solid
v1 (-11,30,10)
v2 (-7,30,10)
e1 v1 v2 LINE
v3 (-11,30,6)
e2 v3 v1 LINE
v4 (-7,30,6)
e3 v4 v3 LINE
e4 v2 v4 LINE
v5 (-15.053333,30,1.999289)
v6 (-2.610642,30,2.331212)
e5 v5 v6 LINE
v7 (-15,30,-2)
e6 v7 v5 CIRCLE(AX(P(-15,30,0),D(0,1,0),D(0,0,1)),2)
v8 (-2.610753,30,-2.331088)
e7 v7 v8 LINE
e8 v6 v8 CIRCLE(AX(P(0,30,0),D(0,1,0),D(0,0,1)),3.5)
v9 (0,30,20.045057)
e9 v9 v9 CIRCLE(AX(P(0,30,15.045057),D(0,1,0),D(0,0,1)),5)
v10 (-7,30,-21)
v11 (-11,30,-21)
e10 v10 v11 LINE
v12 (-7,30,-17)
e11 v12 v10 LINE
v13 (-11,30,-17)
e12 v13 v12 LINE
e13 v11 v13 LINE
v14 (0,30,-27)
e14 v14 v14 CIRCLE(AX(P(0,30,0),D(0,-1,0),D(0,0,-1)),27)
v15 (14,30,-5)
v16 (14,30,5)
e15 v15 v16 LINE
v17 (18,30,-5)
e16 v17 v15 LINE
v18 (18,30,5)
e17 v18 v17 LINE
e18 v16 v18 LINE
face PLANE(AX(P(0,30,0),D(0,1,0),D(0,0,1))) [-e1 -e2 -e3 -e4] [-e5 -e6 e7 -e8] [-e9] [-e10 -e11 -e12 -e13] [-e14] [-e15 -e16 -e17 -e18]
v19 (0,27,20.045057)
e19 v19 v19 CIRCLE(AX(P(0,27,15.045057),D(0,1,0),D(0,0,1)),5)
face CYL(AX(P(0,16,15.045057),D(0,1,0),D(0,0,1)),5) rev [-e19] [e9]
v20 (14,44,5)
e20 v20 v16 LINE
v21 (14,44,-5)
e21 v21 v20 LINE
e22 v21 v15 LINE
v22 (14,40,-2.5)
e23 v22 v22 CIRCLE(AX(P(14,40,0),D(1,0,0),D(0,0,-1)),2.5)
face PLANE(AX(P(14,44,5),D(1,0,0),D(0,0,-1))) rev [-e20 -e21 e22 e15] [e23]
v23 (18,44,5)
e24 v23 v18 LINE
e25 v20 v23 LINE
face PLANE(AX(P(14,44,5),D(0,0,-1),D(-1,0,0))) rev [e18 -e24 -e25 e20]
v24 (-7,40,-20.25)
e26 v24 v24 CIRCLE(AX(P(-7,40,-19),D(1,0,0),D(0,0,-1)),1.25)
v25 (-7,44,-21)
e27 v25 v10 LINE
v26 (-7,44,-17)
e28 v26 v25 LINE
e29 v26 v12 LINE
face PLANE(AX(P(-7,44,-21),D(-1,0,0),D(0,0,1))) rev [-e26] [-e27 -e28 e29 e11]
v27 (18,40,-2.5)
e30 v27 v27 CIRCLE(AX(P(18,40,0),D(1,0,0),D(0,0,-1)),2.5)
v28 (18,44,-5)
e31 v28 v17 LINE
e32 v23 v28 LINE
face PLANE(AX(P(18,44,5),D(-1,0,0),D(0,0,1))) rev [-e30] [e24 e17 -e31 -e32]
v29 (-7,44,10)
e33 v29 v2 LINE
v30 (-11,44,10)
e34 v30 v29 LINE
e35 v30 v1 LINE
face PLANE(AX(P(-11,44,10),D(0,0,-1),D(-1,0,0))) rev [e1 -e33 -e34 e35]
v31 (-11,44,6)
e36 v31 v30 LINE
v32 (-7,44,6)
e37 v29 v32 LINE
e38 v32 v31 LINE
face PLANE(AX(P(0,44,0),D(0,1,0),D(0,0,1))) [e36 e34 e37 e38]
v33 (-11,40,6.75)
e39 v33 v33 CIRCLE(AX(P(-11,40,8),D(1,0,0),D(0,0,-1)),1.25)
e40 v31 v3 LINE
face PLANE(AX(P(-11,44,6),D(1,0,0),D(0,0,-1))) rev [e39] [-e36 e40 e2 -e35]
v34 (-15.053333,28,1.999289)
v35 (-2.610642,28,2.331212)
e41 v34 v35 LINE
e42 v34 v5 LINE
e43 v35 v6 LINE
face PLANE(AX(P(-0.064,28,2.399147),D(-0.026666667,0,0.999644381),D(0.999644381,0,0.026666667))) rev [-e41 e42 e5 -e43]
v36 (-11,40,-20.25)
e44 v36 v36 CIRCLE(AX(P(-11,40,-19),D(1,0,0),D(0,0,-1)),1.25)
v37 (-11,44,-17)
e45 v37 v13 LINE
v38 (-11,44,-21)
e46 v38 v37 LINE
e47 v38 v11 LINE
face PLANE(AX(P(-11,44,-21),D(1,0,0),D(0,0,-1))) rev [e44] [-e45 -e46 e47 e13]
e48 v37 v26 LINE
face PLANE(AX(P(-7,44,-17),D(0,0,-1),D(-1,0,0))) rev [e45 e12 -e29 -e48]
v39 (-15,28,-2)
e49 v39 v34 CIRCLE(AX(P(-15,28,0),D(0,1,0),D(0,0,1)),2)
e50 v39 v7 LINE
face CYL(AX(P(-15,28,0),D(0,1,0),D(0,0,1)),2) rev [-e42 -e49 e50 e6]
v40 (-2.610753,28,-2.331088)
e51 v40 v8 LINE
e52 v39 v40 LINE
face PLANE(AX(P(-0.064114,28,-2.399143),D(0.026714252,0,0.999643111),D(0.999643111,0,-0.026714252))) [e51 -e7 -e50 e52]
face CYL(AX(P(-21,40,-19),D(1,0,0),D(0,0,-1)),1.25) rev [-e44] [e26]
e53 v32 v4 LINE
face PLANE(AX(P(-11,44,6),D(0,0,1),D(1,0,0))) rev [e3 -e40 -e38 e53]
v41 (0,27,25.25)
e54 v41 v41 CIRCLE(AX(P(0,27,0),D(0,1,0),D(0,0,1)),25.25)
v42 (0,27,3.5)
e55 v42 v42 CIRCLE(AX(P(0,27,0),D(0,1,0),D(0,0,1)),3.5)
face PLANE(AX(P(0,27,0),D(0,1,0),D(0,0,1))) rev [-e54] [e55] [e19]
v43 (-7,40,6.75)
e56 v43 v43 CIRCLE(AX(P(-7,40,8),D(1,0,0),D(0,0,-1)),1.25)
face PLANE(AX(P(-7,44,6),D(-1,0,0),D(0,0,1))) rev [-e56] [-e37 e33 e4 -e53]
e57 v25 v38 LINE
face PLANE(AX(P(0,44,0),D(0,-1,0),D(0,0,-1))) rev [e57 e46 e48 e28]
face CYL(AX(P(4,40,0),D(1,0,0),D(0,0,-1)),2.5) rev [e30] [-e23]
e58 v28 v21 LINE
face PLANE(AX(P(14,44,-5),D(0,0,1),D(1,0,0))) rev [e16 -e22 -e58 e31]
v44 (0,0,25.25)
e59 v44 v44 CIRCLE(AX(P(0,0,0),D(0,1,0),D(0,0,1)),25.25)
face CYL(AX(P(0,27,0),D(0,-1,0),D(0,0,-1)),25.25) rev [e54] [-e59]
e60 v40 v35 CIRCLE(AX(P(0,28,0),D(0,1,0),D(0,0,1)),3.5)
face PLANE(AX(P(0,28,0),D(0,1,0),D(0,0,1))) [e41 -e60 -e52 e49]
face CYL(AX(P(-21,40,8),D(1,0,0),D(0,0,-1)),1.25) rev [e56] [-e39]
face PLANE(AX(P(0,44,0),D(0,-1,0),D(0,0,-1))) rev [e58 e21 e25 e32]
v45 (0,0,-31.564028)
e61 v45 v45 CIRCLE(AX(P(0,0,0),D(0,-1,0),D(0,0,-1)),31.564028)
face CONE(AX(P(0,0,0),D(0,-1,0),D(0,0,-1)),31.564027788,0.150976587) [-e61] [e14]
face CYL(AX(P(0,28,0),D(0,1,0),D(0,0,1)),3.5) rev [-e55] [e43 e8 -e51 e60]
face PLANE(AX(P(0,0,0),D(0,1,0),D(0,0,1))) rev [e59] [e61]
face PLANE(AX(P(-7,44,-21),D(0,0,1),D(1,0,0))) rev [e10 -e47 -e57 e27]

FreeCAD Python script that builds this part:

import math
import FreeCAD as App
import Part
import Sketcher
from FreeCAD import Vector
Q = App.Units.Quantity

doc = App.newDocument("Part")
body = doc.addObject("PartDesign::Body", "Body")

# Sketch on XZ plane
sketch1 = doc.addObject("Sketcher::SketchObject", "Sketch")
body.addObject(sketch1)
sketch1.AttachmentSupport = (doc.XZ_Plane, [""])
sketch1.MapMode = "FlatFace"
sketch1.addGeometry([
    Part.Circle(Vector(0, 0, 0), Vector(0, 0, 1), 27),
    Part.Circle(Vector(0, 0, 0), Vector(0, 0, 1), 25),
], False)
sketch1.addConstraint([
    Sketcher.Constraint("Coincident", 0, 3, -1, 1),
    Sketcher.Constraint("Coincident", 1, 3, -1, 1),
    Sketcher.Constraint("Diameter", 0, Q("54 mm")),
    Sketcher.Constraint("Diameter", 1, Q("50.5 mm")),
])
pad1 = doc.addObject("PartDesign::Pad", "Pad")
body.addObject(pad1)
pad1.Profile = sketch1
pad1.Length = 27
pad1.Reversed = True

# Sketch on XZ plane
sketch2 = doc.addObject("Sketcher::SketchObject", "Sketch001")
body.addObject(sketch2)
sketch2.AttachmentSupport = (doc.XZ_Plane, [""])
sketch2.MapMode = "FlatFace"
sketch2.AttachmentOffset = App.Placement(Vector(0, 0, -27), App.Rotation())
sketch2.addGeometry([
    Part.Circle(Vector(0, 0, 0), Vector(0, 0, 1), 27),
    Part.Circle(Vector(0, 0, 0), Vector(0, 0, 1), 2.4),
], False)
sketch2.addConstraint([
    Sketcher.Constraint("Coincident", 0, 3, -1, 1),
    Sketcher.Constraint("Coincident", 1, 3, -1, 1),
    Sketcher.Constraint("Diameter", 0, Q("54 mm")),
    Sketcher.Constraint("Diameter", 1, Q("4.8 mm")),
])
pad2 = doc.addObject("PartDesign::Pad", "Pad001")
body.addObject(pad2)
pad2.Profile = sketch2
pad2.Length = 3
pad2.Reversed = True

# Sketch on XY plane
sketch3 = doc.addObject("Sketcher::SketchObject", "Sketch002")
body.addObject(sketch3)
sketch3.AttachmentSupport = (doc.XY_Plane, [""])
sketch3.MapMode = "FlatFace"
sketch3.addGeometry([
    Part.LineSegment(Vector(31.6, 0, 0), Vector(27, 30, 0)),
    Part.LineSegment(Vector(27, 30, 0), Vector(27, 0, 0)),
    Part.LineSegment(Vector(27, 0, 0), Vector(31.6, 0, 0)),
], False)
sketch3.addConstraint([
    Sketcher.Constraint("Coincident", 0, 2, 1, 1),
    Sketcher.Constraint("Coincident", 1, 2, 2, 1),
    Sketcher.Constraint("Coincident", 2, 2, 0, 1),
    Sketcher.Constraint("Vertical", 1),
    Sketcher.Constraint("Horizontal", 2),
    Sketcher.Constraint("PointOnObject", 1, 2, -1),
    Sketcher.Constraint("DistanceY", 1, 2, 1, 1, Q("30 mm")),
    Sketcher.Constraint("DistanceX", -1, 1, 0, 2, Q("27 mm")),
    Sketcher.Constraint("DistanceX", 2, 1, 2, 2, Q("4.564028 mm")),
])
revolution = doc.addObject("PartDesign::Revolution", "Revolution")
body.addObject(revolution)
revolution.Profile = sketch3
revolution.ReferenceAxis = (sketch3, ["V_Axis"])
revolution.Angle = 360

# Sketch on XZ plane
sketch4 = doc.addObject("Sketcher::SketchObject", "Sketch003")
body.addObject(sketch4)
sketch4.AttachmentSupport = (doc.XZ_Plane, [""])
sketch4.MapMode = "FlatFace"
sketch4.AttachmentOffset = App.Placement(Vector(0, 0, -30), App.Rotation())
sketch4.addGeometry([
    Part.LineSegment(Vector(-11, -21, 0), Vector(-11, -17, 0)),  # 0
    Part.LineSegment(Vector(-11, -17, 0), Vector(-7, -17, 0)),  # 1
    Part.LineSegment(Vector(-7, -17, 0), Vector(-7, -21, 0)),  # 2
    Part.LineSegment(Vector(-7, -21, 0), Vector(-11, -21, 0)),  # 3
    Part.LineSegment(Vector(-11, 6, 0), Vector(-11, 10, 0)),  # 4
    Part.LineSegment(Vector(-11, 10, 0), Vector(-7, 10, 0)),  # 5
    Part.LineSegment(Vector(-7, 10, 0), Vector(-7, 6, 0)),  # 6
    Part.LineSegment(Vector(-7, 6, 0), Vector(-11, 6, 0)),  # 7
], False)
sketch4.addConstraint([
    Sketcher.Constraint("Coincident", 0, 2, 1, 1),
    Sketcher.Constraint("Coincident", 1, 2, 2, 1),
    Sketcher.Constraint("Coincident", 2, 2, 3, 1),
    Sketcher.Constraint("Coincident", 3, 2, 0, 1),
    Sketcher.Constraint("Coincident", 4, 2, 5, 1),
    Sketcher.Constraint("Coincident", 5, 2, 6, 1),
    Sketcher.Constraint("Coincident", 6, 2, 7, 1),
    Sketcher.Constraint("Coincident", 7, 2, 4, 1),
    Sketcher.Constraint("Vertical", 0),
    Sketcher.Constraint("Horizontal", 1),
    Sketcher.Constraint("Vertical", 2),
    Sketcher.Constraint("Horizontal", 3),
    Sketcher.Constraint("Vertical", 4),
    Sketcher.Constraint("Horizontal", 5),
    Sketcher.Constraint("Vertical", 6),
    Sketcher.Constraint("Horizontal", 7),
    Sketcher.Constraint("Vertical", 3, 2, 4, 2),
    Sketcher.Constraint("Vertical", 2, 2, 5, 2),
    Sketcher.Constraint("Equal", 7, 0),
    Sketcher.Constraint("Equal", 2, 4),
    Sketcher.Constraint("DistanceX", 1, 1, 1, 2, Q("4 mm")),
    Sketcher.Constraint("DistanceX", 0, 2, -1, 1, Q("11 mm")),
    Sketcher.Constraint("DistanceY", 0, 2, -1, 1, Q("17 mm")),
    Sketcher.Constraint("DistanceY", -1, 1, 4, 2, Q("10 mm")),
])
pad3 = doc.addObject("PartDesign::Pad", "Pad002")
body.addObject(pad3)
pad3.Profile = sketch4
pad3.Length = 14
pad3.Reversed = True

# Sketch on YZ plane
sketch5 = doc.addObject("Sketcher::SketchObject", "Sketch004")
body.addObject(sketch5)
sketch5.AttachmentSupport = (doc.YZ_Plane, [""])
sketch5.MapMode = "FlatFace"
sketch5.AttachmentOffset = App.Placement(Vector(0, 0, -7), App.Rotation())
sketch5.addGeometry([
    Part.Circle(Vector(40, 8, 0), Vector(0, 0, 1), 1.2),
    Part.Circle(Vector(40, -19, 0), Vector(0, 0, 1), 1.2),
], False)
sketch5.addConstraint([
    Sketcher.Constraint("Equal", 0, 1),
    Sketcher.Constraint("Vertical", 0, 3, 1, 3),
    Sketcher.Constraint("Diameter", 0, Q("2.5 mm")),
    Sketcher.Constraint("DistanceX", -1, 1, 0, 3, Q("40 mm")),
    Sketcher.Constraint("DistanceY", -1, 1, 0, 3, Q("8 mm")),
    Sketcher.Constraint("DistanceY", 1, 3, -1, 1, Q("19 mm")),
])
pocket1 = doc.addObject("PartDesign::Pocket", "Pocket")
body.addObject(pocket1)
pocket1.Profile = sketch5
pocket1.Length = 14

# Sketch on XZ plane
sketch6 = doc.addObject("Sketcher::SketchObject", "Sketch005")
body.addObject(sketch6)
sketch6.AttachmentSupport = (doc.XZ_Plane, [""])
sketch6.MapMode = "FlatFace"
sketch6.AttachmentOffset = App.Placement(Vector(0, 0, -30), App.Rotation())
sketch6.addGeometry([
    Part.LineSegment(Vector(14, -5, 0), Vector(14, 5, 0)),
    Part.LineSegment(Vector(14, 5, 0), Vector(18, 5, 0)),
    Part.LineSegment(Vector(18, 5, 0), Vector(18, -5, 0)),
    Part.LineSegment(Vector(18, -5, 0), Vector(14, -5, 0)),
], False)
sketch6.addConstraint([
    Sketcher.Constraint("Coincident", 0, 2, 1, 1),
    Sketcher.Constraint("Coincident", 1, 2, 2, 1),
    Sketcher.Constraint("Coincident", 2, 2, 3, 1),
    Sketcher.Constraint("Coincident", 3, 2, 0, 1),
    Sketcher.Constraint("Vertical", 0),
    Sketcher.Constraint("Horizontal", 1),
    Sketcher.Constraint("Vertical", 2),
    Sketcher.Constraint("Horizontal", 3),
    Sketcher.Constraint("DistanceX", 1, 1, 1, 2, Q("4 mm")),
    Sketcher.Constraint("DistanceY", 0, 1, 0, 2, Q("10 mm")),
    Sketcher.Constraint("DistanceX", -1, 1, 0, 2, Q("14 mm")),
    Sketcher.Constraint("DistanceY", -1, 1, 0, 2, Q("5 mm")),
])
pad4 = doc.addObject("PartDesign::Pad", "Pad003")
body.addObject(pad4)
pad4.Profile = sketch6
pad4.Length = 14
pad4.Reversed = True

# Sketch on YZ plane
sketch7 = doc.addObject("Sketcher::SketchObject", "Sketch006")
body.addObject(sketch7)
sketch7.AttachmentSupport = (doc.YZ_Plane, [""])
sketch7.MapMode = "FlatFace"
sketch7.AttachmentOffset = App.Placement(Vector(0, 0, 18), App.Rotation())
sketch7.addGeometry(Part.Circle(Vector(40, 0, 0), Vector(0, 0, 1), 2.5), False)
sketch7.addConstraint([
    Sketcher.Constraint("PointOnObject", 0, 3, -1),
    Sketcher.Constraint("Diameter", 0, Q("5 mm")),
    Sketcher.Constraint("DistanceX", -1, 1, 0, 3, Q("40 mm")),
])
pocket2 = doc.addObject("PartDesign::Pocket", "Pocket001")
body.addObject(pocket2)
pocket2.Profile = sketch7
pocket2.Length = 14

# Sketch on XZ plane
sketch8 = doc.addObject("Sketcher::SketchObject", "Sketch007")
body.addObject(sketch8)
sketch8.AttachmentSupport = (doc.XZ_Plane, [""])
sketch8.MapMode = "FlatFace"
sketch8.AttachmentOffset = App.Placement(Vector(0, 0, -30), App.Rotation())
sketch8.addGeometry(Part.Circle(Vector(0, 15, 0), Vector(0, 0, 1), 5), False)
sketch8.addConstraint([
    Sketcher.Constraint("PointOnObject", 0, 3, -2),
    Sketcher.Constraint("Diameter", 0, Q("10 mm")),
    Sketcher.Constraint("DistanceY", -1, 1, 0, 3, Q("15.045057 mm")),
])
pocket3 = doc.addObject("PartDesign::Pocket", "Pocket002")
body.addObject(pocket3)
pocket3.Profile = sketch8
pocket3.Length = 14
pocket3.Reversed = True

# Sketch on XZ plane
sketch9 = doc.addObject("Sketcher::SketchObject", "Sketch008")
body.addObject(sketch9)
sketch9.AttachmentSupport = (doc.XZ_Plane, [""])
sketch9.MapMode = "FlatFace"
sketch9.AttachmentOffset = App.Placement(Vector(0, 0, -30), App.Rotation())
sketch9.addGeometry([
    Part.LineSegment(Vector(-2.6, -2.3, 0), Vector(-15, -2, 0)),  # 0
    Part.ArcOfCircle(Part.Circle(Vector(-15, 0, 0), Vector(0, 0, 1), 2), math.radians(92), math.radians(270)),  # 1
    Part.LineSegment(Vector(-15.1, 2, 0), Vector(-2.6, 2.3, 0)),  # 2
    Part.ArcOfCircle(Part.Circle(Vector(0, 0, 0), Vector(0, 0, 1), 3.5), math.radians(-138), math.radians(138)),  # 3
    Part.Circle(Vector(0, 0, 0), Vector(0, 0, 1), 2.4),  # 4
], False)
sketch9.addConstraint([
    Sketcher.Constraint("Coincident", 0, 2, 1, 2),
    Sketcher.Constraint("Tangent", 1, 1, 2, 1),
    Sketcher.Constraint("Coincident", 2, 2, 3, 2),
    Sketcher.Constraint("Coincident", 3, 1, 0, 1),
    Sketcher.Constraint("Coincident", 3, 3, -1, 1),
    Sketcher.Constraint("Coincident", 4, 3, -1, 1),
    Sketcher.Constraint("PointOnObject", 1, 3, -1),
    Sketcher.Constraint("Vertical", 1, 3, 0, 2),
    Sketcher.Constraint("Radius", 1, Q("2 mm")),
    Sketcher.Constraint("Diameter", 4, Q("4.8 mm")),
    Sketcher.Constraint("Radius", 3, Q("3.5 mm")),
    Sketcher.Constraint("DistanceX", 1, 3, -1, 1, Q("15 mm")),
    Sketcher.Constraint("DistanceY", 3, 1, 2, 2, Q("4.6623 mm")),
    Sketcher.Constraint("Distance", 0, Q("12.39367 mm")),
])
pocket4 = doc.addObject("PartDesign::Pocket", "Pocket003")
body.addObject(pocket4)
pocket4.Profile = sketch9
pocket4.Length = 2
pocket4.Reversed = True

# Sketch on XZ plane
sketch10 = doc.addObject("Sketcher::SketchObject", "Sketch009")
body.addObject(sketch10)
sketch10.AttachmentSupport = (doc.XZ_Plane, [""])
sketch10.MapMode = "FlatFace"
sketch10.AttachmentOffset = App.Placement(Vector(0, 0, -28), App.Rotation())
sketch10.addGeometry([
    Part.ArcOfCircle(Part.Circle(Vector(0, 0, 0), Vector(0, 0, 1), 3.5), math.radians(138), math.radians(222)),
    Part.ArcOfCircle(Part.Circle(Vector(0, 0, 0), Vector(0, 0, 1), 3.5), math.radians(0), math.radians(138)),
    Part.ArcOfCircle(Part.Circle(Vector(0, 0, 0), Vector(0, 0, 1), 3.5), math.radians(-138), math.radians(0)),
    Part.Circle(Vector(0, 0, 0), Vector(0, 0, 1), 2.4),
], False)
sketch10.addConstraint([
    Sketcher.Constraint("Tangent", 0, 1, 1, 2),
    Sketcher.Constraint("Tangent", 1, 1, 2, 2),
    Sketcher.Constraint("Tangent", 2, 1, 0, 2),
    Sketcher.Constraint("Coincident", 0, 3, -1, 1),
    Sketcher.Constraint("Coincident", 3, 3, -1, 1),
    Sketcher.Constraint("PointOnObject", 1, 1, -1),
    Sketcher.Constraint("Diameter", 3, Q("4.8 mm")),
    Sketcher.Constraint("Radius", 0, Q("3.5 mm")),
    Sketcher.Constraint("DistanceY", 2, 1, 0, 1, Q("4.6623 mm")),
    Sketcher.Constraint("DistanceX", 0, 1, -1, 1, Q("2.610642 mm")),
])
pocket5 = doc.addObject("PartDesign::Pocket", "Pocket004")
body.addObject(pocket5)
pocket5.Profile = sketch10
pocket5.Length = 91
pocket5.Reversed = True

doc.recompute()
